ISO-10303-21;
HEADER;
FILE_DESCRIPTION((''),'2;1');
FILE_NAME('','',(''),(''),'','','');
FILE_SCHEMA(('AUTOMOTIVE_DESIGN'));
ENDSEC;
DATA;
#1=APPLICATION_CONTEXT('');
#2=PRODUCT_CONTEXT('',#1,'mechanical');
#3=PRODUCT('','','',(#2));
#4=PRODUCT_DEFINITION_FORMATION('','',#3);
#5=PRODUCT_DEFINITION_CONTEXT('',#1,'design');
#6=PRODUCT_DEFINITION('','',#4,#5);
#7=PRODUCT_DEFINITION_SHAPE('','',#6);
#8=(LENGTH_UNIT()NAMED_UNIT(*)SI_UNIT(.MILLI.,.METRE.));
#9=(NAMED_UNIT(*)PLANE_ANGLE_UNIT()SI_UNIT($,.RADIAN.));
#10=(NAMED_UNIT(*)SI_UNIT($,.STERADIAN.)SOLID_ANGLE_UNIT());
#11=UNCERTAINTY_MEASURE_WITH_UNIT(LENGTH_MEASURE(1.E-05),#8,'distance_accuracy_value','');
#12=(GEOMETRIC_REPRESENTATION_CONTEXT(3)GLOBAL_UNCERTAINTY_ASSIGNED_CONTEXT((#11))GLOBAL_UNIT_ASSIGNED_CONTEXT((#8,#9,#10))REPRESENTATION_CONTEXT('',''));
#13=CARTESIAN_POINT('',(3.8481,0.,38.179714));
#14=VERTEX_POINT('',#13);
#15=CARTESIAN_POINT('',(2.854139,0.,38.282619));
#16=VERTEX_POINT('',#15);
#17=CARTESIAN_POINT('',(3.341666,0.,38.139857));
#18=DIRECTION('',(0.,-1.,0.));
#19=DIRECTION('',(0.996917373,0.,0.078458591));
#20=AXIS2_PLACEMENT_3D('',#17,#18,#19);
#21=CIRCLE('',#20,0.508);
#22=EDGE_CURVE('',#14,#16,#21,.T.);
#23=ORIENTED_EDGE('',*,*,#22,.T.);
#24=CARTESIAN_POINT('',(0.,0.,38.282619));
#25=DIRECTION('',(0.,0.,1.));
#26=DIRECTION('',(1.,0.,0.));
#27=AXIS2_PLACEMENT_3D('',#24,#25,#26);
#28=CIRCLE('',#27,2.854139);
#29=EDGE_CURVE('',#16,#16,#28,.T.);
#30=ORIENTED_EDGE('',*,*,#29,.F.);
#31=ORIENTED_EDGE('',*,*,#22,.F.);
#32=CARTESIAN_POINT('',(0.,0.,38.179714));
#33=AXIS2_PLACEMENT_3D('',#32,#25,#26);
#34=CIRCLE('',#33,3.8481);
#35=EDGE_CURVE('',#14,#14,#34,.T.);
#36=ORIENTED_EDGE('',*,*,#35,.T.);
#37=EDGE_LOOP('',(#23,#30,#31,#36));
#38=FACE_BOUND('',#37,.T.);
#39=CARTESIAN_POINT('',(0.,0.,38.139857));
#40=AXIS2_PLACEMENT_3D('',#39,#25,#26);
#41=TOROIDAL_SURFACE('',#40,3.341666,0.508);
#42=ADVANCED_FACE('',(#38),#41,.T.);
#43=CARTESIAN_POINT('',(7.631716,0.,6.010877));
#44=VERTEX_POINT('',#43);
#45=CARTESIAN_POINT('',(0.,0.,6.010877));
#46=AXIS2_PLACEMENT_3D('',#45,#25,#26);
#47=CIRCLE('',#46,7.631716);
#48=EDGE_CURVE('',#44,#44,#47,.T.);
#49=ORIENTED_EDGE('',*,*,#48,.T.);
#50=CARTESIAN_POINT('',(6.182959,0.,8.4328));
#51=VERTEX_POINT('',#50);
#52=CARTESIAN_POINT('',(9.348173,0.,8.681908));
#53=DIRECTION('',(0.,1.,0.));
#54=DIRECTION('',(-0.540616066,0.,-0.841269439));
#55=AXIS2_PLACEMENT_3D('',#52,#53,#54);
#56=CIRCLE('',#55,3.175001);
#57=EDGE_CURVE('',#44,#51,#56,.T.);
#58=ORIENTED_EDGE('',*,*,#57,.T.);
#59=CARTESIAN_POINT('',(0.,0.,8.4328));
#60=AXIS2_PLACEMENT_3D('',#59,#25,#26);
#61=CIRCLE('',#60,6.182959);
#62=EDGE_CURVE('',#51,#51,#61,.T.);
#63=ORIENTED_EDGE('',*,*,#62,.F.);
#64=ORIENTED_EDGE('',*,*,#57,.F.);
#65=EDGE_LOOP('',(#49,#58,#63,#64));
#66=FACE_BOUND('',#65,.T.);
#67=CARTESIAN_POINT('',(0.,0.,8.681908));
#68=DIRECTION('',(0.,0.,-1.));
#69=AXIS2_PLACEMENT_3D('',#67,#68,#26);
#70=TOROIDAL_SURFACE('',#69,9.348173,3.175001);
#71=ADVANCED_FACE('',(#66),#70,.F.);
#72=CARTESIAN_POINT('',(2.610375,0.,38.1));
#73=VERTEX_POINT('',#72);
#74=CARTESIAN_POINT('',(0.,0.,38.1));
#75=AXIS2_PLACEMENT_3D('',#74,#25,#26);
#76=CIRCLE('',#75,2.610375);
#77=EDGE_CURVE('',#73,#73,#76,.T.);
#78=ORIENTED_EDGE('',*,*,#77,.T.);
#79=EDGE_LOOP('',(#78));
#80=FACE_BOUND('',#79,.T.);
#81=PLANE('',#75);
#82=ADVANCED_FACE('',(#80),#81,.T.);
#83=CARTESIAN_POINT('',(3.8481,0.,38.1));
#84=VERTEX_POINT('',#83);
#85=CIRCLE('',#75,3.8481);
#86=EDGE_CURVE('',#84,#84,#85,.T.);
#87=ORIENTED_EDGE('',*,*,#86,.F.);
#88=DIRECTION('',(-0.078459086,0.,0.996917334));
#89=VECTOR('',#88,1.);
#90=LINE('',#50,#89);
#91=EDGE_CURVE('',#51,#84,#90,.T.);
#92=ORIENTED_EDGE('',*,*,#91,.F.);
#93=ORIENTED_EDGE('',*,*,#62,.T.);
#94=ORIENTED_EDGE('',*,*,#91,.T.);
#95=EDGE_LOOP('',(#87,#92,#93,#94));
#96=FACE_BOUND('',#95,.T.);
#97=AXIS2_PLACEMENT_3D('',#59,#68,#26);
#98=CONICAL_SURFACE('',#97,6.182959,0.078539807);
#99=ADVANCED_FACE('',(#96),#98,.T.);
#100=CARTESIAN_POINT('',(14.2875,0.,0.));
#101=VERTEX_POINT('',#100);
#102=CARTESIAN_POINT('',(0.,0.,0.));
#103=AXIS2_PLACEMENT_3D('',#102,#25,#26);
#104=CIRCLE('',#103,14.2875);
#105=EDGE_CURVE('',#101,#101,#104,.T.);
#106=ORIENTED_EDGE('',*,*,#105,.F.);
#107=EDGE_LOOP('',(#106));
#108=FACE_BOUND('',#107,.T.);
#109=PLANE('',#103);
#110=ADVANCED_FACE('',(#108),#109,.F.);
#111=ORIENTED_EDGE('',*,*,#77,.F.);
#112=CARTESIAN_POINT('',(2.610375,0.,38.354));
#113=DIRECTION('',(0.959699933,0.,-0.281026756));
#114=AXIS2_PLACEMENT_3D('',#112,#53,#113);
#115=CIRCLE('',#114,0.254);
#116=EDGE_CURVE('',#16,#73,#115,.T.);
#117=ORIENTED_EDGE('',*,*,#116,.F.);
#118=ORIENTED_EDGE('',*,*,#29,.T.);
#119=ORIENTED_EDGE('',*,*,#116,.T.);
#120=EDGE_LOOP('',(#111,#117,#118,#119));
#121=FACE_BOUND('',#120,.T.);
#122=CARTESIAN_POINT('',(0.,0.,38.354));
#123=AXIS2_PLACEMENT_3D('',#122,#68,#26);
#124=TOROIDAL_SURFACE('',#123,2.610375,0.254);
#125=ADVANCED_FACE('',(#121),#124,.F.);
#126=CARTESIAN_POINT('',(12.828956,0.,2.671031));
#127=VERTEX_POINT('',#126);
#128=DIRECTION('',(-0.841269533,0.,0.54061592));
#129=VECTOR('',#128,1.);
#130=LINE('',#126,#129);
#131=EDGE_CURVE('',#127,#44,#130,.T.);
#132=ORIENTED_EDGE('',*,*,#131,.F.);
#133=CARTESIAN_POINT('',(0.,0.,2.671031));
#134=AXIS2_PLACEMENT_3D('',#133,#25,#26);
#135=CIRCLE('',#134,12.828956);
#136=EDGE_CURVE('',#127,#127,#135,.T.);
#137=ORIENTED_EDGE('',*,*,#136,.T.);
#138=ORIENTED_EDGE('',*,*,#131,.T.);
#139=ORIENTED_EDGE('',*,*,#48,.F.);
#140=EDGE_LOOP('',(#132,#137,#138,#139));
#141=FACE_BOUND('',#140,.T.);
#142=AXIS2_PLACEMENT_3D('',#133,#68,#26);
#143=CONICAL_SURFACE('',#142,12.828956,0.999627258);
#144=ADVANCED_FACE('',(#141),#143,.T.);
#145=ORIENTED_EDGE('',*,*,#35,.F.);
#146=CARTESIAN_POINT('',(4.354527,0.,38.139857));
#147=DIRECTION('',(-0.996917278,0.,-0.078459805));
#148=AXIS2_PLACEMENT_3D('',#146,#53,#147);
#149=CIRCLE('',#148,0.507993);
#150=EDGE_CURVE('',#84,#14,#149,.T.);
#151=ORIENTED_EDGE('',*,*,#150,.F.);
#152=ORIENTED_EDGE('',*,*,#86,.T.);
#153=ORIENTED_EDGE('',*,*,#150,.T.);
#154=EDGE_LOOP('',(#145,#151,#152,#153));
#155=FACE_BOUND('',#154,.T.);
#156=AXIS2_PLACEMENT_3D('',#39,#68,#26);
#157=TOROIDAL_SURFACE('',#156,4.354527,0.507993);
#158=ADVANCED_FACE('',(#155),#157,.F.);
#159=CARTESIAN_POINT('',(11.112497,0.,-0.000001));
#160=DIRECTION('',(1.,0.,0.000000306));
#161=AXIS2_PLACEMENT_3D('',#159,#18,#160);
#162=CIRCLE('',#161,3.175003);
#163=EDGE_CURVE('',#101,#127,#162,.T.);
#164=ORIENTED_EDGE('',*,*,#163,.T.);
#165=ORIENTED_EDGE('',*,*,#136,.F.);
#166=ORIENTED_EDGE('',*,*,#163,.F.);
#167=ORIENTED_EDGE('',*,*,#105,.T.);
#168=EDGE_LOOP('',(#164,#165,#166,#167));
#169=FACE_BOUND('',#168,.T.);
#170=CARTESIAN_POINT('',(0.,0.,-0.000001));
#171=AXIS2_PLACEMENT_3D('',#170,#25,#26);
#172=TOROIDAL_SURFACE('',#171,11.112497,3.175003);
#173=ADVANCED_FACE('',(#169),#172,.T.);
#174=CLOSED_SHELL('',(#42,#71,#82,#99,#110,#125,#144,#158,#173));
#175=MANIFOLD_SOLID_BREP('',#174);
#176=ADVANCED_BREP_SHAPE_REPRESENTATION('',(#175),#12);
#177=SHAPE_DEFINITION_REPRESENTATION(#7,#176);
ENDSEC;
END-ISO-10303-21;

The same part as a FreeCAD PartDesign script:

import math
import FreeCAD as App
import Part
import Sketcher

V = App.Vector
Q = App.Units.Quantity

doc = App.newDocument("Part")
body = doc.addObject("PartDesign::Body", "Body")

sketch1 = doc.addObject("Sketcher::SketchObject", "Sketch")
body.addObject(sketch1)
sketch1.AttachmentSupport = (doc.XZ_Plane, [""])
sketch1.MapMode = "FlatFace"
sketch1.addGeometry(Part.LineSegment(V(0, 38.1, 0), V(0, 0, 0)), False)
sketch1.addGeometry(Part.LineSegment(V(0, 0, 0), V(14.29, 0, 0)), False)
sketch1.addGeometry(Part.ArcOfCircle(Part.Circle(V(11.11, 0, 0), V(0, 0, 1), 3.18), math.radians(0), math.radians(57)), False)
sketch1.addGeometry(Part.LineSegment(V(12.83, 2.67, 0), V(7.63, 6.01, 0)), False)
sketch1.addGeometry(Part.ArcOfCircle(Part.Circle(V(9.35, 8.68, 0), V(0, 0, 1), 3.18), math.radians(-175), math.radians(-123)), False)
sketch1.addGeometry(Part.LineSegment(V(6.18, 8.43, 0), V(3.85, 38.1, 0)), False)
sketch1.addGeometry(Part.ArcOfCircle(Part.Circle(V(4.35, 38.14, 0), V(0, 0, 1), 0.51), math.radians(175.5), math.radians(184.5)), False)
sketch1.addGeometry(Part.ArcOfCircle(Part.Circle(V(3.34, 38.14, 0), V(0, 0, 1), 0.51), math.radians(4), math.radians(164)), False)
sketch1.addGeometry(Part.ArcOfCircle(Part.Circle(V(2.61, 38.35, 0), V(0, 0, 1), 0.25), math.radians(-90), math.radians(-16)), False)
sketch1.addGeometry(Part.LineSegment(V(2.61, 38.1, 0), V(0, 38.1, 0)), False)
sketch1.addConstraint(Sketcher.Constraint("Coincident", 0, 2, 1, 1))
sketch1.addConstraint(Sketcher.Constraint("Coincident", 1, 2, 2, 1))
sketch1.addConstraint(Sketcher.Constraint("Tangent", 2, 2, 3, 1))
sketch1.addConstraint(Sketcher.Constraint("Tangent", 3, 2, 4, 2))
sketch1.addConstraint(Sketcher.Constraint("Tangent", 4, 1, 5, 1))
sketch1.addConstraint(Sketcher.Constraint("Tangent", 5, 2, 6, 2))
sketch1.addConstraint(Sketcher.Constraint("Coincident", 6, 1, 7, 1))
sketch1.addConstraint(Sketcher.Constraint("Tangent", 7, 2, 8, 2))
sketch1.addConstraint(Sketcher.Constraint("Tangent", 8, 1, 9, 1))
sketch1.addConstraint(Sketcher.Constraint("Coincident", 9, 2, 0, 1))
sketch1.addConstraint(Sketcher.Constraint("Vertical", 0))
sketch1.addConstraint(Sketcher.Constraint("Horizontal", 1))
sketch1.addConstraint(Sketcher.Constraint("Horizontal", 9))
sketch1.addConstraint(Sketcher.Constraint("Coincident", 0, 2, -1, 1))
sketch1.addConstraint(Sketcher.Constraint("Equal", 2, 4))
sketch1.addConstraint(Sketcher.Constraint("PointOnObject", 2, 3, -1))
sketch1.addConstraint(Sketcher.Constraint("Horizontal", 6, 3, 7, 3))
sketch1.addConstraint(Sketcher.Constraint("Horizontal", 5, 2, 8, 1))
sketch1.addConstraint(Sketcher.Constraint("Vertical", 5, 2, 6, 1))
sketch1.addConstraint(Sketcher.Constraint("Radius", 7, Q("0.02 in")))
sketch1.addConstraint(Sketcher.Constraint("Radius", 8, Q("0.01 in")))
sketch1.addConstraint(Sketcher.Constraint("DistanceY", 0, 2, 0, 1, Q("1.5 in")))
sketch1.addConstraint(Sketcher.Constraint("Radius", 2, Q("0.1250001 in")))
sketch1.addConstraint(Sketcher.Constraint("Angle", 5, Q("94.499999 deg")))
sketch1.addConstraint(Sketcher.Constraint("DistanceX", 1, 1, 1, 2, Q("0.5625 in")))
sketch1.addConstraint(Sketcher.Constraint("DistanceY", -1, 1, 4, 1, Q("0.332 in")))
sketch1.addConstraint(Sketcher.Constraint("DistanceX", -1, 1, 5, 2, Q("0.1515 in")))
sketch1.addConstraint(Sketcher.Constraint("Radius", 6, 0.507993))
revolution = doc.addObject("PartDesign::Revolution", "Revolution")
body.addObject(revolution)
revolution.Profile = sketch1
revolution.ReferenceAxis = (sketch1, ["V_Axis"])
revolution.Angle = 360

doc.recompute()
